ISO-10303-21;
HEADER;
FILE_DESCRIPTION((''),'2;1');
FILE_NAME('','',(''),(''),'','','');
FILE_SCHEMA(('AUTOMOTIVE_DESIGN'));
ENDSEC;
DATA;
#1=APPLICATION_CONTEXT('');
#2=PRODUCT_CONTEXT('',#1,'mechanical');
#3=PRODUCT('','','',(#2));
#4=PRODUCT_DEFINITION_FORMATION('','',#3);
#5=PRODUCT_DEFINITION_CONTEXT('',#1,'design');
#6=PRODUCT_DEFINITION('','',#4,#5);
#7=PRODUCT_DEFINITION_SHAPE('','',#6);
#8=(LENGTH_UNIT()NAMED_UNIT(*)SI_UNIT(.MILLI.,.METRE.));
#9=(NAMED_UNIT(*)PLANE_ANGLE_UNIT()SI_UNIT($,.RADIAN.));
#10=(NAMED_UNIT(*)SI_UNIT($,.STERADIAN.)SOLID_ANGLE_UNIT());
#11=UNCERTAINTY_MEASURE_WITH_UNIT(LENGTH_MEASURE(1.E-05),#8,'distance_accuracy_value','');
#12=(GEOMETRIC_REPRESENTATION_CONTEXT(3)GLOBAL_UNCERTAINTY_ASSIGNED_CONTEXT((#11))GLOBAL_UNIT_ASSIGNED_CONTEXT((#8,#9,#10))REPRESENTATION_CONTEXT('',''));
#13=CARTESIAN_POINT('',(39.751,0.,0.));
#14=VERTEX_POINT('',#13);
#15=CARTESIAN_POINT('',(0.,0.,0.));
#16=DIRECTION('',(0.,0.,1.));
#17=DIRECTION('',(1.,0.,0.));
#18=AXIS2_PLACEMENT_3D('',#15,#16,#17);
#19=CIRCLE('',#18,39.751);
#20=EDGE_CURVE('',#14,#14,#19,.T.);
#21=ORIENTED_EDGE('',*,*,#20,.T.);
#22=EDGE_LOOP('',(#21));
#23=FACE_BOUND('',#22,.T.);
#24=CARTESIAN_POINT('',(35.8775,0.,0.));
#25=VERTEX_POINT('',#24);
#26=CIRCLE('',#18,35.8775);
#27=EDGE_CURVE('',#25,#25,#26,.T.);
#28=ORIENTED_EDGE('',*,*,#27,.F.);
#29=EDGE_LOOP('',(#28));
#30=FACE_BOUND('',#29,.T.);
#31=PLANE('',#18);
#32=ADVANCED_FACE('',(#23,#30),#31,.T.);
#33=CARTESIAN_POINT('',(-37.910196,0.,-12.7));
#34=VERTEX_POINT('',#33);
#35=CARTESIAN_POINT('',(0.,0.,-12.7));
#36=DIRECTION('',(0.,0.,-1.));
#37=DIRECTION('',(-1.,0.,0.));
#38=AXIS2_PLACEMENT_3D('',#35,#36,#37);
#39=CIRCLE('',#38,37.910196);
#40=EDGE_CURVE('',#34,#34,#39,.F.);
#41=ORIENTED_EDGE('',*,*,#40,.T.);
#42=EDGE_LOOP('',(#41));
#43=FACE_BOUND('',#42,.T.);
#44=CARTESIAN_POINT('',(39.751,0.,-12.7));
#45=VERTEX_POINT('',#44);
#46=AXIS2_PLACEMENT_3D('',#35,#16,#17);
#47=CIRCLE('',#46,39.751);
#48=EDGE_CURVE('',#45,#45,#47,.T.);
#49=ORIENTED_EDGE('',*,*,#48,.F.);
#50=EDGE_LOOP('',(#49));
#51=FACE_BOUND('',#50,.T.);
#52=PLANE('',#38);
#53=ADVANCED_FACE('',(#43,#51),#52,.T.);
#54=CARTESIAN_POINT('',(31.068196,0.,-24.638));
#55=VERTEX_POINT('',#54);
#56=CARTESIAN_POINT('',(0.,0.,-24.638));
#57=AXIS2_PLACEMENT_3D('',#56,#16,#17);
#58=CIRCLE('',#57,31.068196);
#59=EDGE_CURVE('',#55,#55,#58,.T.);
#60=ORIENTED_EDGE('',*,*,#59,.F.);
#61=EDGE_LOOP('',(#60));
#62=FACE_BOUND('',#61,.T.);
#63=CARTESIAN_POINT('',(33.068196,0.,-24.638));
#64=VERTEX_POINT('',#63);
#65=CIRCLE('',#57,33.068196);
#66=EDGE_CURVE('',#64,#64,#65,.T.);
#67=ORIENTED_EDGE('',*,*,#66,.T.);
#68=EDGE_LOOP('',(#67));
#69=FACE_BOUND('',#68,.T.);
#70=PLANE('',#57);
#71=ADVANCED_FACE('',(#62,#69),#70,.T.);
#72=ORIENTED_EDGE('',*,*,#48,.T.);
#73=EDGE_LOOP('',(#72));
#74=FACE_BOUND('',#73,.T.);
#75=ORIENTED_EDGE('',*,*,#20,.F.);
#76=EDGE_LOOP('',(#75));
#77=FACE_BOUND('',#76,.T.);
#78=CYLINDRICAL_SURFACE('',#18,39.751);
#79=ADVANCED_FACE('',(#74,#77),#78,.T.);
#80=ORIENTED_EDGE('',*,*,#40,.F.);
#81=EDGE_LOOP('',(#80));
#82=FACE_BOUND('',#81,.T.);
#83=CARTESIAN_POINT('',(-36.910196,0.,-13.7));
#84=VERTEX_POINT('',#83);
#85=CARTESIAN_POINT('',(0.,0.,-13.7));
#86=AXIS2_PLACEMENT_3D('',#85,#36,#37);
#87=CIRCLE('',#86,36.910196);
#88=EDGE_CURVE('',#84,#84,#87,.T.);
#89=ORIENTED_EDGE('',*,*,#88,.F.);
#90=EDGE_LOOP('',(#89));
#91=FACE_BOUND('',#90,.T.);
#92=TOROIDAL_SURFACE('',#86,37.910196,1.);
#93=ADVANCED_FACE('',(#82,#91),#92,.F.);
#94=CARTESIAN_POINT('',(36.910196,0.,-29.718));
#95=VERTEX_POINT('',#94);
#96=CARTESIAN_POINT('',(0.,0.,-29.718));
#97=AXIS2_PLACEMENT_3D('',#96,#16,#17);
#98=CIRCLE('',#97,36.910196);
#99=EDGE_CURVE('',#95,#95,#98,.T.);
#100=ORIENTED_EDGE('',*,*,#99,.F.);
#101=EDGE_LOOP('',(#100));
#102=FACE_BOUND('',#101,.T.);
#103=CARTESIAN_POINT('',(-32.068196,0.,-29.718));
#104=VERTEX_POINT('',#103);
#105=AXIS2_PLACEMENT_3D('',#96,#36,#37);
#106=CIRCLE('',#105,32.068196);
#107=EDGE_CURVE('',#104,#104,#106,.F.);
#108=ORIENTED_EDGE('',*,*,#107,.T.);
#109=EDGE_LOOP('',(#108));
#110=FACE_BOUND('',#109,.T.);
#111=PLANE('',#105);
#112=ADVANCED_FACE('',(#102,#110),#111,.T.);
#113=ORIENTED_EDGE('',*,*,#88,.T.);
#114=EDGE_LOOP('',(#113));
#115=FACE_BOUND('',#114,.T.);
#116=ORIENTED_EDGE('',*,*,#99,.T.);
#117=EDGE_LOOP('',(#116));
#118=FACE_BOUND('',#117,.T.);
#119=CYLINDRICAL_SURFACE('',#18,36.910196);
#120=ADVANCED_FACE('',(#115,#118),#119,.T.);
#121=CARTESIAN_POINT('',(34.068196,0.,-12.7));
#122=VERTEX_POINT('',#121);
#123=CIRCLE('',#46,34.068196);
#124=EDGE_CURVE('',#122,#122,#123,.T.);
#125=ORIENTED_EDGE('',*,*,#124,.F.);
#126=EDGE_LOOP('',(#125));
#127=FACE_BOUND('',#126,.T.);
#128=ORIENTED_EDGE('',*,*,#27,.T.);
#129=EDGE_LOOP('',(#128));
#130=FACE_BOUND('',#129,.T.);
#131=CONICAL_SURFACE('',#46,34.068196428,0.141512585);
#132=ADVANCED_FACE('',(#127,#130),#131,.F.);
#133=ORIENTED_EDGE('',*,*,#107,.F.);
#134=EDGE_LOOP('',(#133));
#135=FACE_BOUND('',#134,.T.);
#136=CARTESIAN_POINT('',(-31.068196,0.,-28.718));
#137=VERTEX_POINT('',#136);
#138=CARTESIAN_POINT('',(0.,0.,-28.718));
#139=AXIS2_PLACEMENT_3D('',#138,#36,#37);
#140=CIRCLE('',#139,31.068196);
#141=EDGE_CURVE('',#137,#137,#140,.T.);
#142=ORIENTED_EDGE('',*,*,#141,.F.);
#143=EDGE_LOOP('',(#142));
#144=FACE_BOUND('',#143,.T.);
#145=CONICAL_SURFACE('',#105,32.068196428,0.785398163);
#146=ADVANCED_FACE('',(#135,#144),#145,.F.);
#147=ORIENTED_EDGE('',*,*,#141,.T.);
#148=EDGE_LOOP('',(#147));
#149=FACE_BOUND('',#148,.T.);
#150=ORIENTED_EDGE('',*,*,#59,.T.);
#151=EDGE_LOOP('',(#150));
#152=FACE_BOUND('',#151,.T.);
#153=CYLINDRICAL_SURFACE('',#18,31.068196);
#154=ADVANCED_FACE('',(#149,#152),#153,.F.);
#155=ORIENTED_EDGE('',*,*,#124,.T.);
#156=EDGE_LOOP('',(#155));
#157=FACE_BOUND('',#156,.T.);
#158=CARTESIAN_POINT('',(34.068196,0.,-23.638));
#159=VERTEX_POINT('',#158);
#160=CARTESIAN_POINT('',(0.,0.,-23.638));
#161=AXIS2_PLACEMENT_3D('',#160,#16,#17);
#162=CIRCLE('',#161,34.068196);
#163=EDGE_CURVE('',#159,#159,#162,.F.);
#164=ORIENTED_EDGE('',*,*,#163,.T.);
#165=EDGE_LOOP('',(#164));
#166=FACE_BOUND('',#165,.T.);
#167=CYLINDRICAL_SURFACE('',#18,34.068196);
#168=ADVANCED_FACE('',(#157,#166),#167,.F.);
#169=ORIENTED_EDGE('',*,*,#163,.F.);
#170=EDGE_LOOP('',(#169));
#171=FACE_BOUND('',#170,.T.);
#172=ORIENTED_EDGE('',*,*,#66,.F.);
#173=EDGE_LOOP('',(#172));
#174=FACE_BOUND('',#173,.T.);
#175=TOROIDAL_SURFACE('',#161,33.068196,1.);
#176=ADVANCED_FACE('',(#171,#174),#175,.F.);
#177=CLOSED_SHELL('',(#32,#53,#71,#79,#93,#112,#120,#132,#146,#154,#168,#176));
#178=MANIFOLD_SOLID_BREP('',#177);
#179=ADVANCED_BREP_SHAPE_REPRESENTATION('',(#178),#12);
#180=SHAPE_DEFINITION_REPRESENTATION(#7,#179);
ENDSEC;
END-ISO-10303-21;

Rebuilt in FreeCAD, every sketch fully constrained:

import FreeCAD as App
import Part
import Sketcher
Q = App.Units.Quantity


def edges_at(feature, points):
    """Names of the edges that pass closest to the given points."""
    edges = feature.Shape.Edges
    near = lambda p: min(range(len(edges)), key=lambda i: edges[i].distToShape(Part.Vertex(*p))[0])
    return sorted({f"Edge{near(p) + 1}" for p in points})


def add_polygon(sketch, points):
    """Adds a closed chain of lines whose ends are joined by coincident constraints."""
    first, n = sketch.GeometryCount, len(points)
    for a, b in zip(points, points[1:] + points[:1]):
        sketch.addGeometry(Part.LineSegment(App.Vector(*a, 0), App.Vector(*b, 0)), False)
    for i in range(n):
        sketch.addConstraint(Sketcher.Constraint("Coincident", first + i, 2, first + (i + 1) % n, 1))

doc = App.newDocument("Part")
body = doc.addObject("PartDesign::Body", "Body")

# Sketch on XZ plane
sketch1 = doc.addObject("Sketcher::SketchObject", "Sketch")
body.addObject(sketch1)
sketch1.AttachmentSupport = (doc.XZ_Plane, [""])
sketch1.MapMode = "FlatFace"
add_polygon(sketch1, [(34.1, -24.6), (34.1, -12.7), (35.9, 0), (39.8, 0), (39.8, -12.7), (36.9, -12.7), (36.9, -29.7), (31.1, -29.7), (31.1, -24.6)])  # lines 0-8
sketch1.addConstraint(Sketcher.Constraint("Vertical", 0))
sketch1.addConstraint(Sketcher.Constraint("Horizontal", 2))
sketch1.addConstraint(Sketcher.Constraint("Vertical", 3))
sketch1.addConstraint(Sketcher.Constraint("Horizontal", 4))
sketch1.addConstraint(Sketcher.Constraint("Vertical", 5))
sketch1.addConstraint(Sketcher.Constraint("Horizontal", 6))
sketch1.addConstraint(Sketcher.Constraint("Vertical", 7))
sketch1.addConstraint(Sketcher.Constraint("Horizontal", 8))
sketch1.addConstraint(Sketcher.Constraint("PointOnObject", 1, 2, -1))
sketch1.addConstraint(Sketcher.Constraint("Horizontal", 0, 2, 3, 2))
sketch1.addConstraint(Sketcher.Constraint("DistanceY", 3, 2, 3, 1, Q("0.5 in")))
sketch1.addConstraint(Sketcher.Constraint("DistanceY", 7, 1, 7, 2, Q("0.2 in")))
sketch1.addConstraint(Sketcher.Constraint("DistanceX", 6, 2, 6, 1, Q("0.23 in")))
sketch1.addConstraint(Sketcher.Constraint("DistanceY", 0, 1, 0, 2, Q("0.47 in")))
sketch1.addConstraint(Sketcher.Constraint("DistanceX", 2, 1, 2, 2, Q("0.1525 in")))
sketch1.addConstraint(Sketcher.Constraint("DistanceX", -1, 1, 2, 2, Q("1.565 in")))
sketch1.addConstraint(Sketcher.Constraint("DistanceX", 8, 1, 8, 2, 3.0))
sketch1.addConstraint(Sketcher.Constraint("DistanceX", 4, 2, 4, 1, 2.840804))
revolution = doc.addObject("PartDesign::Revolution", "Revolution")
body.addObject(revolution)
revolution.Profile = sketch1
revolution.ReferenceAxis = (sketch1, ["V_Axis"])
revolution.Angle = 360
doc.recompute()

fillet = doc.addObject("PartDesign::Fillet", "Fillet")
body.addObject(fillet)
fillet.Base = (revolution, edges_at(revolution, [(-36.91, 0, -12.7)]))
fillet.Radius = 1
doc.recompute()

chamfer = doc.addObject("PartDesign::Chamfer", "Chamfer")
body.addObject(chamfer)
chamfer.Base = (fillet, edges_at(fillet, [(-31.068, 0, -29.718)]))
chamfer.Size = 1
doc.recompute()

fillet2 = doc.addObject("PartDesign::Fillet", "Fillet001")
body.addObject(fillet2)
fillet2.Base = (chamfer, edges_at(chamfer, [(-34.068, 0, -24.638)]))
fillet2.Radius = 1

doc.recompute()
